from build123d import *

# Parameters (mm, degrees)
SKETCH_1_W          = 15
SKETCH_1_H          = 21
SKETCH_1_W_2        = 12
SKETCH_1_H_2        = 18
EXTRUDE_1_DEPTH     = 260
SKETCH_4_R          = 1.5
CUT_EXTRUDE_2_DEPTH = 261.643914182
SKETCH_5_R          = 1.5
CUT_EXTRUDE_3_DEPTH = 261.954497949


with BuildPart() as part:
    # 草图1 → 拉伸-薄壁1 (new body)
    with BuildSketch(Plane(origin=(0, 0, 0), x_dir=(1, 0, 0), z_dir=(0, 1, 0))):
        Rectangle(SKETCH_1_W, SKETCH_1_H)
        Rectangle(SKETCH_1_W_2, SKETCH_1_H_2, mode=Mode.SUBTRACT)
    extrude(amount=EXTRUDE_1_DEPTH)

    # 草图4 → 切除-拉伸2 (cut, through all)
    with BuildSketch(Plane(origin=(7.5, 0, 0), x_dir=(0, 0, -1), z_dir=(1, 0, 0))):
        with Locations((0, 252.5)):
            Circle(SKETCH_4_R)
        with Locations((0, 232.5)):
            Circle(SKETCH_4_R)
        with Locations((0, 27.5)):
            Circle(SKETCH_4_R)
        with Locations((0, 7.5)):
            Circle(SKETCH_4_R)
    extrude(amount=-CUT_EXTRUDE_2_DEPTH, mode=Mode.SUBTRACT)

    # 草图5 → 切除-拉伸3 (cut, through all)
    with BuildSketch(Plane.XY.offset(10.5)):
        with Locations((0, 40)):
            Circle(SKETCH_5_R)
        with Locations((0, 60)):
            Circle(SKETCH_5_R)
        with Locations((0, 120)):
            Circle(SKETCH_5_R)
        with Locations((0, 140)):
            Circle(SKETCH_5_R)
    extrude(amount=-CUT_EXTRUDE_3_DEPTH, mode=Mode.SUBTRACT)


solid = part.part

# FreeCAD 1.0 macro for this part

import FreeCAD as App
import Part
import Sketcher

doc = App.newDocument("Part")
params = doc.addObject("Spreadsheet::Sheet", "Params")
for row, (alias, value) in enumerate([
    ("sketch1_width", "15 mm"),
    ("sketch1_width2", "12 mm"),
    ("sketch1_height", "21 mm"),
    ("sketch1_height2", "18 mm"),
    ("pad1_length", "260 mm"),
    ("sketch2_diameter", "3 mm"),
    ("sketch3_diameter", "3 mm"),
], start=1):
    params.set(f"A{row}", alias)
    params.set(f"B{row}", "=" + value)
    params.setAlias(f"B{row}", alias)

body = doc.addObject("PartDesign::Body", "Body")

# Sketch on XZ plane
sketch1 = body.newObject("Sketcher::SketchObject", "Sketch")
sketch1.AttachmentSupport = (doc.getObject("XZ_Plane"), [""])
sketch1.MapMode = "FlatFace"
sketch1.addGeometry([
    Part.LineSegment(App.Vector(-7.5, -10.5, 0), App.Vector(-7.5, 10.5, 0)),  # 0
    Part.LineSegment(App.Vector(-7.5, 10.5, 0), App.Vector(7.5, 10.5, 0)),  # 1
    Part.LineSegment(App.Vector(7.5, 10.5, 0), App.Vector(7.5, -10.5, 0)),  # 2
    Part.LineSegment(App.Vector(7.5, -10.5, 0), App.Vector(-7.5, -10.5, 0)),  # 3
    Part.LineSegment(App.Vector(6, 9, 0), App.Vector(-6, 9, 0)),  # 4
    Part.LineSegment(App.Vector(-6, 9, 0), App.Vector(-6, -9, 0)),  # 5
    Part.LineSegment(App.Vector(-6, -9, 0), App.Vector(6, -9, 0)),  # 6
    Part.LineSegment(App.Vector(6, -9, 0), App.Vector(6, 9, 0)),  # 7
], False)
sketch1.addConstraint([
    Sketcher.Constraint("Coincident", 0, 2, 1, 1),
    Sketcher.Constraint("Coincident", 1, 2, 2, 1),
    Sketcher.Constraint("Coincident", 2, 2, 3, 1),
    Sketcher.Constraint("Coincident", 3, 2, 0, 1),
    Sketcher.Constraint("Coincident", 4, 2, 5, 1),
    Sketcher.Constraint("Coincident", 5, 2, 6, 1),
    Sketcher.Constraint("Coincident", 6, 2, 7, 1),
    Sketcher.Constraint("Coincident", 7, 2, 4, 1),
    Sketcher.Constraint("Vertical", 0),
    Sketcher.Constraint("Horizontal", 1),
    Sketcher.Constraint("Vertical", 2),
    Sketcher.Constraint("Horizontal", 3),
    Sketcher.Constraint("Horizontal", 4),
    Sketcher.Constraint("Vertical", 5),
    Sketcher.Constraint("Horizontal", 6),
    Sketcher.Constraint("Vertical", 7),
    Sketcher.Constraint("Symmetric", 0, 2, 2, 2, -1, 1),
    Sketcher.Constraint("Symmetric", 4, 2, 6, 2, -1, 1),
    Sketcher.Constraint("DistanceX", 1, 1, 1, 2, 15.0),
    Sketcher.Constraint("DistanceX", 4, 2, 4, 1, 12.0),
    Sketcher.Constraint("DistanceY", 0, 1, 0, 2, 21.0),
    Sketcher.Constraint("DistanceY", 5, 2, 5, 1, 18.0),
])
sketch1.setExpression("Constraints[18]", "Params.sketch1_width")
sketch1.setExpression("Constraints[19]", "Params.sketch1_width2")
sketch1.setExpression("Constraints[20]", "Params.sketch1_height")
sketch1.setExpression("Constraints[21]", "Params.sketch1_height2")
pad1 = body.newObject("PartDesign::Pad", "Pad")
pad1.Profile = sketch1
pad1.setExpression("Length", "Params.pad1_length")
pad1.Reversed = True

# Sketch on YZ plane
sketch2 = body.newObject("Sketcher::SketchObject", "Sketch001")
sketch2.AttachmentSupport = (doc.getObject("YZ_Plane"), [""])
sketch2.MapMode = "FlatFace"
sketch2.AttachmentOffset = App.Placement(App.Vector(0, 0, 7.5), App.Rotation())
sketch2.addGeometry([
    Part.Circle(App.Vector(252.5, 0, 0), App.Vector(0, 0, 1), 1.5),
    Part.Circle(App.Vector(232.5, 0, 0), App.Vector(0, 0, 1), 1.5),
    Part.Circle(App.Vector(27.5, 0, 0), App.Vector(0, 0, 1), 1.5),
    Part.Circle(App.Vector(7.5, 0, 0), App.Vector(0, 0, 1), 1.5),
], False)
sketch2.addConstraint([
    Sketcher.Constraint("Equal", 0, 1),
    Sketcher.Constraint("Equal", 1, 2),
    Sketcher.Constraint("Equal", 2, 3),
    Sketcher.Constraint("PointOnObject", 0, 3, -1),
    Sketcher.Constraint("PointOnObject", 1, 3, -1),
    Sketcher.Constraint("PointOnObject", 2, 3, -1),
    Sketcher.Constraint("PointOnObject", 3, 3, -1),
    Sketcher.Constraint("Diameter", 0, 3.0),
    Sketcher.Constraint("DistanceX", 1, 3, 0, 3, 20.0),
    Sketcher.Constraint("DistanceX", 2, 3, 1, 3, 205.0),
    Sketcher.Constraint("DistanceX", 3, 3, 2, 3, 20.0),
    Sketcher.Constraint("DistanceX", -1, 1, 0, 3, 252.5),
])
sketch2.setExpression("Constraints[7]", "Params.sketch2_diameter")
pocket1 = body.newObject("PartDesign::Pocket", "Pocket")
pocket1.Profile = sketch2
pocket1.Type = "ThroughAll"

# Sketch on XY plane
sketch3 = body.newObject("Sketcher::SketchObject", "Sketch002")
sketch3.AttachmentSupport = (doc.getObject("XY_Plane"), [""])
sketch3.MapMode = "FlatFace"
sketch3.AttachmentOffset = App.Placement(App.Vector(0, 0, 10.5), App.Rotation())
sketch3.addGeometry([
    Part.Circle(App.Vector(0, 40, 0), App.Vector(0, 0, 1), 1.5),
    Part.Circle(App.Vector(0, 60, 0), App.Vector(0, 0, 1), 1.5),
    Part.Circle(App.Vector(0, 120, 0), App.Vector(0, 0, 1), 1.5),
    Part.Circle(App.Vector(0, 140, 0), App.Vector(0, 0, 1), 1.5),
], False)
sketch3.addConstraint([
    Sketcher.Constraint("Equal", 0, 1),
    Sketcher.Constraint("Equal", 1, 2),
    Sketcher.Constraint("Equal", 2, 3),
    Sketcher.Constraint("PointOnObject", 0, 3, -2),
    Sketcher.Constraint("PointOnObject", 1, 3, -2),
    Sketcher.Constraint("PointOnObject", 2, 3, -2),
    Sketcher.Constraint("PointOnObject", 3, 3, -2),
    Sketcher.Constraint("Diameter", 0, 3.0),
    Sketcher.Constraint("DistanceY", -1, 1, 0, 3, 40.0),
    Sketcher.Constraint("DistanceY", -1, 1, 1, 3, 60.0),
    Sketcher.Constraint("DistanceY", -1, 1, 2, 3, 120.0),
    Sketcher.Constraint("DistanceY", -1, 1, 3, 3, 140.0),
])
sketch3.setExpression("Constraints[7]", "Params.sketch3_diameter")
pocket2 = body.newObject("PartDesign::Pocket", "Pocket001")
pocket2.Profile = sketch3
pocket2.Type = "ThroughAll"

doc.recompute()
